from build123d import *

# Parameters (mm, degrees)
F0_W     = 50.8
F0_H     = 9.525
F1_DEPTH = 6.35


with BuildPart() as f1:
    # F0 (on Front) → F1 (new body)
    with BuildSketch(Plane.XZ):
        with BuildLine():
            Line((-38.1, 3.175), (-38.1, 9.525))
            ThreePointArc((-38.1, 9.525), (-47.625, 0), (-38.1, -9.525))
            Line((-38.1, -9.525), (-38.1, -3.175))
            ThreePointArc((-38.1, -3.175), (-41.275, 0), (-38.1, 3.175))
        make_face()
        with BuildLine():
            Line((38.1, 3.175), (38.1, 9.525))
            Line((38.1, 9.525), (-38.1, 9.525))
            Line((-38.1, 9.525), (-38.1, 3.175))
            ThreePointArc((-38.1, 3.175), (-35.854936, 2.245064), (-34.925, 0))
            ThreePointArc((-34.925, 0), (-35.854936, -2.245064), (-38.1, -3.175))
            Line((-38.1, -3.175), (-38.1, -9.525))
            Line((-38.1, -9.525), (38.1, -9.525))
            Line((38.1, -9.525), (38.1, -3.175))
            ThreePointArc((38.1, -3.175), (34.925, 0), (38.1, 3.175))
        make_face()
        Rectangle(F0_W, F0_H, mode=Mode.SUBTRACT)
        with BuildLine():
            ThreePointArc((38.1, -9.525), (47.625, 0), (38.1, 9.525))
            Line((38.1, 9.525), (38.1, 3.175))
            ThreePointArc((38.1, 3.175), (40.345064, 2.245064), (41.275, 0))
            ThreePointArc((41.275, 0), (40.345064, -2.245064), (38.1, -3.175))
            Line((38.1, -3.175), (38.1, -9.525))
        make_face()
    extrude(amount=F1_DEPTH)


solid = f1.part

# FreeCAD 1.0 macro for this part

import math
import FreeCAD as App
import Part
import Sketcher
from FreeCAD import Vector
Q = App.Units.Quantity


def add_polygon(sketch, points):
    """Adds a closed chain of lines whose ends are joined by coincident constraints."""
    first, n = sketch.GeometryCount, len(points)
    for a, b in zip(points, points[1:] + points[:1]):
        sketch.addGeometry(Part.LineSegment(App.Vector(*a, 0), App.Vector(*b, 0)), False)
    for i in range(n):
        sketch.addConstraint(Sketcher.Constraint("Coincident", first + i, 2, first + (i + 1) % n, 1))

doc = App.newDocument("Part")
body = doc.addObject("PartDesign::Body", "Body")

# Sketch on XZ plane
sketch1 = body.newObject("Sketcher::SketchObject", "Sketch")
sketch1.AttachmentSupport = (doc.getObject("XZ_Plane"), [""])
sketch1.MapMode = "FlatFace"
sketch1.addGeometry(Part.ArcOfCircle(Part.Circle(Vector(-38.1, 0, 0), Vector(0, 0, 1), 9.5), math.radians(90), math.radians(270)), False)  # 0
sketch1.addGeometry(Part.LineSegment(Vector(-38.1, -9.5, 0), Vector(38.1, -9.5, 0)), False)  # 1
sketch1.addGeometry(Part.ArcOfCircle(Part.Circle(Vector(38.1, 0, 0), Vector(0, 0, 1), 9.5), math.radians(-90), math.radians(90)), False)  # 2
sketch1.addGeometry(Part.LineSegment(Vector(38.1, 9.5, 0), Vector(-38.1, 9.5, 0)), False)  # 3
sketch1.addGeometry(Part.ArcOfCircle(Part.Circle(Vector(38.1, 0, 0), Vector(0, 0, 1), 3.2), math.radians(90), math.radians(270)), False)  # 4
sketch1.addGeometry(Part.ArcOfCircle(Part.Circle(Vector(38.1, 0, 0), Vector(0, 0, 1), 3.2), math.radians(0), math.radians(90)), False)  # 5
sketch1.addGeometry(Part.ArcOfCircle(Part.Circle(Vector(38.1, 0, 0), Vector(0, 0, 1), 3.2), math.radians(-90), math.radians(0)), False)  # 6
sketch1.addGeometry(Part.ArcOfCircle(Part.Circle(Vector(-38.1, 0, 0), Vector(0, 0, 1), 3.2), math.radians(90), math.radians(270)), False)  # 7
sketch1.addGeometry(Part.ArcOfCircle(Part.Circle(Vector(-38.1, 0, 0), Vector(0, 0, 1), 3.2), math.radians(0), math.radians(90)), False)  # 8
sketch1.addGeometry(Part.ArcOfCircle(Part.Circle(Vector(-38.1, 0, 0), Vector(0, 0, 1), 3.2), math.radians(-90), math.radians(0)), False)  # 9
add_polygon(sketch1, [(25.4, -4.8), (-25.4, -4.8), (-25.4, 4.8), (25.4, 4.8)])  # lines 10-13
sketch1.addConstraint(Sketcher.Constraint("Tangent", 0, 2, 1, 1))
sketch1.addConstraint(Sketcher.Constraint("Tangent", 1, 2, 2, 1))
sketch1.addConstraint(Sketcher.Constraint("Tangent", 2, 2, 3, 1))
sketch1.addConstraint(Sketcher.Constraint("Tangent", 3, 2, 0, 1))
sketch1.addConstraint(Sketcher.Constraint("Tangent", 4, 1, 5, 2))
sketch1.addConstraint(Sketcher.Constraint("Tangent", 5, 1, 6, 2))
sketch1.addConstraint(Sketcher.Constraint("Tangent", 6, 1, 4, 2))
sketch1.addConstraint(Sketcher.Constraint("Tangent", 7, 1, 8, 2))
sketch1.addConstraint(Sketcher.Constraint("Tangent", 8, 1, 9, 2))
sketch1.addConstraint(Sketcher.Constraint("Tangent", 9, 1, 7, 2))
sketch1.addConstraint(Sketcher.Constraint("Horizontal", 1))
sketch1.addConstraint(Sketcher.Constraint("Horizontal", 3))
sketch1.addConstraint(Sketcher.Constraint("Horizontal", 10))
sketch1.addConstraint(Sketcher.Constraint("Vertical", 11))
sketch1.addConstraint(Sketcher.Constraint("Horizontal", 12))
sketch1.addConstraint(Sketcher.Constraint("Vertical", 13))
sketch1.addConstraint(Sketcher.Constraint("Coincident", 4, 3, 2, 3))
sketch1.addConstraint(Sketcher.Constraint("Coincident", 7, 3, 0, 3))
sketch1.addConstraint(Sketcher.Constraint("Equal", 6, 7))
sketch1.addConstraint(Sketcher.Constraint("Symmetric", 0, 3, 2, 3, -1, 1))
sketch1.addConstraint(Sketcher.Constraint("Symmetric", 10, 2, 12, 2, -1, 1))
sketch1.addConstraint(Sketcher.Constraint("PointOnObject", 5, 1, -1))
sketch1.addConstraint(Sketcher.Constraint("PointOnObject", 8, 1, -1))
sketch1.addConstraint(Sketcher.Constraint("Vertical", 2, 2, 4, 1))
sketch1.addConstraint(Sketcher.Constraint("Vertical", 4, 1, 6, 1))
sketch1.addConstraint(Sketcher.Constraint("Vertical", 3, 2, 7, 1))
sketch1.addConstraint(Sketcher.Constraint("Vertical", 7, 1, 9, 1))
sketch1.addConstraint(Sketcher.Constraint("DistanceX", 1, 1, 1, 2, Q("3 in")))
sketch1.addConstraint(Sketcher.Constraint("DistanceX", 10, 2, 10, 1, Q("2 in")))
sketch1.addConstraint(Sketcher.Constraint("Radius", 0, Q("0.375 in")))
sketch1.addConstraint(Sketcher.Constraint("Radius", 4, Q("0.125 in")))
sketch1.addConstraint(Sketcher.Constraint("DistanceY", 11, 1, 11, 2, Q("0.375 in")))
pad1 = body.newObject("PartDesign::Pad", "Pad")
pad1.Profile = sketch1
pad1.Length = Q("0.25 in")

doc.recompute()
